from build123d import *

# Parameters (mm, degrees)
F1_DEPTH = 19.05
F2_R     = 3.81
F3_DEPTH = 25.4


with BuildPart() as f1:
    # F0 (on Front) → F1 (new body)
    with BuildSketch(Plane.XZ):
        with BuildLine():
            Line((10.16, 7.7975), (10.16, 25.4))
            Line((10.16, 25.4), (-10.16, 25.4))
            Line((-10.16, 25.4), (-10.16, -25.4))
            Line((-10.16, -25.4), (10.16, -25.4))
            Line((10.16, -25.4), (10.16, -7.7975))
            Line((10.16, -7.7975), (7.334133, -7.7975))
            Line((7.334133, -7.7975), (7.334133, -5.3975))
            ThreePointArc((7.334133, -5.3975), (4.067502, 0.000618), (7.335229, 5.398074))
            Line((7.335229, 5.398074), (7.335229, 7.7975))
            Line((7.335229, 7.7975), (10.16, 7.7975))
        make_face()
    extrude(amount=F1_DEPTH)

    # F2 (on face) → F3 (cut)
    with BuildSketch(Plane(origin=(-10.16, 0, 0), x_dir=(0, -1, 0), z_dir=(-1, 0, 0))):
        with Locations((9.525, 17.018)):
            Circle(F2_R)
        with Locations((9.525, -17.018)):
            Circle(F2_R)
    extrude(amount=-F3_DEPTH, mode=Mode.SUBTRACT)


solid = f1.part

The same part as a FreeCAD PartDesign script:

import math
import FreeCAD as App
import Part
import Sketcher

V = App.Vector
Q = App.Units.Quantity

doc = App.newDocument("Part")
body = doc.addObject("PartDesign::Body", "Body")

sketch1 = body.newObject("Sketcher::SketchObject", "Sketch")
sketch1.AttachmentSupport = (doc.getObject("XZ_Plane"), [""])
sketch1.MapMode = "FlatFace"
sketch1.addGeometry([
    Part.LineSegment(V(10.2, 7.8, 0), V(10.2, 25.4, 0)),
    Part.LineSegment(V(10.2, 25.4, 0), V(-10.2, 25.4, 0)),
    Part.LineSegment(V(-10.2, 25.4, 0), V(-10.2, -25.4, 0)),
    Part.LineSegment(V(-10.2, -25.4, 0), V(10.2, -25.4, 0)),
    Part.LineSegment(V(10.2, -25.4, 0), V(10.2, -7.8, 0)),
    Part.LineSegment(V(10.2, -7.8, 0), V(7.3, -7.8, 0)),
    Part.LineSegment(V(7.3, -7.8, 0), V(7.3, -5.4, 0)),
    Part.ArcOfCircle(Part.Circle(V(10.2, 0, 0), V(0, 0, 1), 6.1), math.radians(118), math.radians(242)),
    Part.LineSegment(V(7.3, 5.4, 0), V(7.3, 7.8, 0)),
    Part.LineSegment(V(7.3, 7.8, 0), V(10.2, 7.8, 0)),
], False)
sketch1.addConstraint([
    Sketcher.Constraint("Coincident", 0, 2, 1, 1),
    Sketcher.Constraint("Coincident", 1, 2, 2, 1),
    Sketcher.Constraint("Coincident", 2, 2, 3, 1),
    Sketcher.Constraint("Coincident", 3, 2, 4, 1),
    Sketcher.Constraint("Coincident", 4, 2, 5, 1),
    Sketcher.Constraint("Coincident", 5, 2, 6, 1),
    Sketcher.Constraint("Coincident", 6, 2, 7, 2),
    Sketcher.Constraint("Coincident", 7, 1, 8, 1),
    Sketcher.Constraint("Coincident", 8, 2, 9, 1),
    Sketcher.Constraint("Coincident", 9, 2, 0, 1),
    Sketcher.Constraint("Vertical", 0),
    Sketcher.Constraint("Horizontal", 1),
    Sketcher.Constraint("Vertical", 2),
    Sketcher.Constraint("Horizontal", 3),
    Sketcher.Constraint("Vertical", 4),
    Sketcher.Constraint("Horizontal", 5),
    Sketcher.Constraint("Vertical", 6),
    Sketcher.Constraint("Vertical", 8),
    Sketcher.Constraint("Horizontal", 9),
    Sketcher.Constraint("Symmetric", 0, 2, 2, 2, -1, 1),
    Sketcher.Constraint("Symmetric", 4, 2, 9, 2, -1),
    Sketcher.Constraint("PointOnObject", 7, 3, -1),
    Sketcher.Constraint("Vertical", 7, 3, 0, 2),
    Sketcher.Constraint("DistanceY", 2, 2, 2, 1, Q("2 in")),
    Sketcher.Constraint("DistanceX", 1, 2, 1, 1, Q("0.8 in")),
    Sketcher.Constraint("Radius", 7, Q("6.092498 mm")),
    Sketcher.Constraint("DistanceY", 0, 1, 0, 2, Q("17.6025 mm")),
    Sketcher.Constraint("DistanceY", 6, 1, 6, 2, Q("2.4 mm")),
    Sketcher.Constraint("DistanceX", 9, 1, 9, 2, Q("2.824771 mm")),
])
pad1 = body.newObject("PartDesign::Pad", "Pad")
pad1.Profile = sketch1
pad1.Length = Q("0.75 in")

sketch2 = body.newObject("Sketcher::SketchObject", "Sketch001")
sketch2.AttachmentSupport = (doc.getObject("YZ_Plane"), [""])
sketch2.MapMode = "FlatFace"
sketch2.AttachmentOffset = App.Placement(V(0, 0, -0.4 * 25.4), App.Rotation())
sketch2.addGeometry([
    Part.Circle(V(-9.5, 17, 0), V(0, 0, 1), 3.8),
    Part.Circle(V(-9.5, -17, 0), V(0, 0, 1), 3.8),
], False)
sketch2.addConstraint([
    Sketcher.Constraint("Equal", 0, 1),
    Sketcher.Constraint("Symmetric", 0, 3, 1, 3, -1),
    Sketcher.Constraint("Diameter", 0, Q("0.3 in")),
    Sketcher.Constraint("DistanceY", -1, 1, 0, 3, Q("0.67 in")),
    Sketcher.Constraint("DistanceX", 0, 3, -1, 1, Q("0.375 in")),
])
pocket1 = body.newObject("PartDesign::Pocket", "Pocket")
pocket1.Profile = sketch2
pocket1.Length = Q("1 in")
pocket1.Reversed = True

doc.recompute()
